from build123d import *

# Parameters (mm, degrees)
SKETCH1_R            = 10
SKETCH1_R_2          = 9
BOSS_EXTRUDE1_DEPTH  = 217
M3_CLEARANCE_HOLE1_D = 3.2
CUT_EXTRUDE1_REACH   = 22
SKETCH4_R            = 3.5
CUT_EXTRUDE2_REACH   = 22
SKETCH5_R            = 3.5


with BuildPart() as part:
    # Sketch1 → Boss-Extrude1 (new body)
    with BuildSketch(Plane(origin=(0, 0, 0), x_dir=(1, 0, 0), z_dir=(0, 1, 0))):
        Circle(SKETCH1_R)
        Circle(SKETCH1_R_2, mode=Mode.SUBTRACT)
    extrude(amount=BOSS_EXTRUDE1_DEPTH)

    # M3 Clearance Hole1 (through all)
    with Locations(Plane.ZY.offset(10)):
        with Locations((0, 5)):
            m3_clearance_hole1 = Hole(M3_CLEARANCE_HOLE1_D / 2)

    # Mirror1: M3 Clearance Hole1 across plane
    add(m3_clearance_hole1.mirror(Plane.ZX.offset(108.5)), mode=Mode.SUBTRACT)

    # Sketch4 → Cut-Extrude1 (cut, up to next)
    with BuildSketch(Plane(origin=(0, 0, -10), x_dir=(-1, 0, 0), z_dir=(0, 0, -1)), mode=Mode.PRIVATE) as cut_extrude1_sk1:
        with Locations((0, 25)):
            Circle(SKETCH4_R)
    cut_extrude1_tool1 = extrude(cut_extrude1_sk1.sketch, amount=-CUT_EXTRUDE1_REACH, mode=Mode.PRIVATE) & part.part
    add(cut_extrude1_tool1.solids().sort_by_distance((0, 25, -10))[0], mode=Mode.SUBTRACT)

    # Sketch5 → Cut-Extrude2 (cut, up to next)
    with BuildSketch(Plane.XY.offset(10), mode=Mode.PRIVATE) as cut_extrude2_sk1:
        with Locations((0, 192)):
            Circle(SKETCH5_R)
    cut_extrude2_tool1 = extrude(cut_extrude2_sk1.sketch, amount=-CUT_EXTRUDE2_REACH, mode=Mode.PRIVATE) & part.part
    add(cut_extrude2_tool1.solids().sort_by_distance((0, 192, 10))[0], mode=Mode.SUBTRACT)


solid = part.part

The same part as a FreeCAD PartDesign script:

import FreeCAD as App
import Part
import Sketcher

V = App.Vector
Q = App.Units.Quantity

doc = App.newDocument("Part")
body = doc.addObject("PartDesign::Body", "Body")

sketch1 = body.newObject("Sketcher::SketchObject", "Sketch")
sketch1.AttachmentSupport = (doc.getObject("XZ_Plane"), [""])
sketch1.MapMode = "FlatFace"
sketch1.addGeometry([
    Part.Circle(V(0, 0, 0), V(0, 0, 1), 10),
    Part.Circle(V(0, 0, 0), V(0, 0, 1), 9),
], False)
sketch1.addConstraint([
    Sketcher.Constraint("Coincident", 0, 3, -1, 1),
    Sketcher.Constraint("Coincident", 1, 3, -1, 1),
    Sketcher.Constraint("Diameter", 0, Q("20 mm")),
    Sketcher.Constraint("Diameter", 1, Q("18 mm")),
])
pad1 = body.newObject("PartDesign::Pad", "Pad")
pad1.Profile = sketch1
pad1.Length = 217
pad1.Reversed = True

sketch2 = body.newObject("Sketcher::SketchObject", "Sketch001")
sketch2.AttachmentSupport = (doc.getObject("YZ_Plane"), [""])
sketch2.MapMode = "FlatFace"
sketch2.AttachmentOffset = App.Placement(V(0, 0, -10), App.Rotation())
sketch2.addGeometry(Part.Circle(V(5, 0, 0), V(0, 0, 1), 1.6), False)
sketch2.addConstraint([
    Sketcher.Constraint("PointOnObject", 0, 3, -1),
    Sketcher.Constraint("Diameter", 0, Q("3.2 mm")),
    Sketcher.Constraint("DistanceX", -1, 1, 0, 3, Q("5 mm")),
])
doc.recompute()
hole = body.newObject("PartDesign::Hole", "Hole")
hole.Profile = sketch2
hole.ThreadType = "None"
hole.Diameter = 3.2
hole.DepthType = "ThroughAll"
hole.Reversed = True
doc.recompute()

datumplane = body.newObject("PartDesign::Plane", "DatumPlane")
datumplane.AttachmentSupport = (doc.getObject("XZ_Plane"), [""])
datumplane.MapMode = "FlatFace"
datumplane.AttachmentOffset = App.Placement(V(0, 0, -108.5), App.Rotation())
mirrored = body.newObject("PartDesign::Mirrored", "Mirrored")
mirrored.Originals = [hole]
mirrored.MirrorPlane = (datumplane, [""])
body.Tip = mirrored

sketch3 = body.newObject("Sketcher::SketchObject", "Sketch002")
sketch3.AttachmentSupport = (doc.getObject("XY_Plane"), [""])
sketch3.MapMode = "FlatFace"
sketch3.AttachmentOffset = App.Placement(V(0, 0, -10), App.Rotation())
sketch3.addGeometry(Part.Circle(V(0, 25, 0), V(0, 0, 1), 3.5), False)
sketch3.addConstraint([
    Sketcher.Constraint("PointOnObject", 0, 3, -2),
    Sketcher.Constraint("Diameter", 0, Q("7 mm")),
    Sketcher.Constraint("DistanceY", -1, 1, 0, 3, Q("25 mm")),
])
pocket1 = body.newObject("PartDesign::Pocket", "Pocket")
pocket1.Profile = sketch3
pocket1.Length = 1.708438
pocket1.Reversed = True

sketch4 = body.newObject("Sketcher::SketchObject", "Sketch003")
sketch4.AttachmentSupport = (doc.getObject("XY_Plane"), [""])
sketch4.MapMode = "FlatFace"
sketch4.AttachmentOffset = App.Placement(V(0, 0, 10), App.Rotation())
sketch4.addGeometry(Part.Circle(V(0, 192, 0), V(0, 0, 1), 3.5), False)
sketch4.addConstraint([
    Sketcher.Constraint("PointOnObject", 0, 3, -2),
    Sketcher.Constraint("Diameter", 0, Q("7 mm")),
    Sketcher.Constraint("DistanceY", -1, 1, 0, 3, Q("192 mm")),
])
pocket2 = body.newObject("PartDesign::Pocket", "Pocket001")
pocket2.Profile = sketch4
pocket2.Type = "UpToFirst"

doc.recompute()
